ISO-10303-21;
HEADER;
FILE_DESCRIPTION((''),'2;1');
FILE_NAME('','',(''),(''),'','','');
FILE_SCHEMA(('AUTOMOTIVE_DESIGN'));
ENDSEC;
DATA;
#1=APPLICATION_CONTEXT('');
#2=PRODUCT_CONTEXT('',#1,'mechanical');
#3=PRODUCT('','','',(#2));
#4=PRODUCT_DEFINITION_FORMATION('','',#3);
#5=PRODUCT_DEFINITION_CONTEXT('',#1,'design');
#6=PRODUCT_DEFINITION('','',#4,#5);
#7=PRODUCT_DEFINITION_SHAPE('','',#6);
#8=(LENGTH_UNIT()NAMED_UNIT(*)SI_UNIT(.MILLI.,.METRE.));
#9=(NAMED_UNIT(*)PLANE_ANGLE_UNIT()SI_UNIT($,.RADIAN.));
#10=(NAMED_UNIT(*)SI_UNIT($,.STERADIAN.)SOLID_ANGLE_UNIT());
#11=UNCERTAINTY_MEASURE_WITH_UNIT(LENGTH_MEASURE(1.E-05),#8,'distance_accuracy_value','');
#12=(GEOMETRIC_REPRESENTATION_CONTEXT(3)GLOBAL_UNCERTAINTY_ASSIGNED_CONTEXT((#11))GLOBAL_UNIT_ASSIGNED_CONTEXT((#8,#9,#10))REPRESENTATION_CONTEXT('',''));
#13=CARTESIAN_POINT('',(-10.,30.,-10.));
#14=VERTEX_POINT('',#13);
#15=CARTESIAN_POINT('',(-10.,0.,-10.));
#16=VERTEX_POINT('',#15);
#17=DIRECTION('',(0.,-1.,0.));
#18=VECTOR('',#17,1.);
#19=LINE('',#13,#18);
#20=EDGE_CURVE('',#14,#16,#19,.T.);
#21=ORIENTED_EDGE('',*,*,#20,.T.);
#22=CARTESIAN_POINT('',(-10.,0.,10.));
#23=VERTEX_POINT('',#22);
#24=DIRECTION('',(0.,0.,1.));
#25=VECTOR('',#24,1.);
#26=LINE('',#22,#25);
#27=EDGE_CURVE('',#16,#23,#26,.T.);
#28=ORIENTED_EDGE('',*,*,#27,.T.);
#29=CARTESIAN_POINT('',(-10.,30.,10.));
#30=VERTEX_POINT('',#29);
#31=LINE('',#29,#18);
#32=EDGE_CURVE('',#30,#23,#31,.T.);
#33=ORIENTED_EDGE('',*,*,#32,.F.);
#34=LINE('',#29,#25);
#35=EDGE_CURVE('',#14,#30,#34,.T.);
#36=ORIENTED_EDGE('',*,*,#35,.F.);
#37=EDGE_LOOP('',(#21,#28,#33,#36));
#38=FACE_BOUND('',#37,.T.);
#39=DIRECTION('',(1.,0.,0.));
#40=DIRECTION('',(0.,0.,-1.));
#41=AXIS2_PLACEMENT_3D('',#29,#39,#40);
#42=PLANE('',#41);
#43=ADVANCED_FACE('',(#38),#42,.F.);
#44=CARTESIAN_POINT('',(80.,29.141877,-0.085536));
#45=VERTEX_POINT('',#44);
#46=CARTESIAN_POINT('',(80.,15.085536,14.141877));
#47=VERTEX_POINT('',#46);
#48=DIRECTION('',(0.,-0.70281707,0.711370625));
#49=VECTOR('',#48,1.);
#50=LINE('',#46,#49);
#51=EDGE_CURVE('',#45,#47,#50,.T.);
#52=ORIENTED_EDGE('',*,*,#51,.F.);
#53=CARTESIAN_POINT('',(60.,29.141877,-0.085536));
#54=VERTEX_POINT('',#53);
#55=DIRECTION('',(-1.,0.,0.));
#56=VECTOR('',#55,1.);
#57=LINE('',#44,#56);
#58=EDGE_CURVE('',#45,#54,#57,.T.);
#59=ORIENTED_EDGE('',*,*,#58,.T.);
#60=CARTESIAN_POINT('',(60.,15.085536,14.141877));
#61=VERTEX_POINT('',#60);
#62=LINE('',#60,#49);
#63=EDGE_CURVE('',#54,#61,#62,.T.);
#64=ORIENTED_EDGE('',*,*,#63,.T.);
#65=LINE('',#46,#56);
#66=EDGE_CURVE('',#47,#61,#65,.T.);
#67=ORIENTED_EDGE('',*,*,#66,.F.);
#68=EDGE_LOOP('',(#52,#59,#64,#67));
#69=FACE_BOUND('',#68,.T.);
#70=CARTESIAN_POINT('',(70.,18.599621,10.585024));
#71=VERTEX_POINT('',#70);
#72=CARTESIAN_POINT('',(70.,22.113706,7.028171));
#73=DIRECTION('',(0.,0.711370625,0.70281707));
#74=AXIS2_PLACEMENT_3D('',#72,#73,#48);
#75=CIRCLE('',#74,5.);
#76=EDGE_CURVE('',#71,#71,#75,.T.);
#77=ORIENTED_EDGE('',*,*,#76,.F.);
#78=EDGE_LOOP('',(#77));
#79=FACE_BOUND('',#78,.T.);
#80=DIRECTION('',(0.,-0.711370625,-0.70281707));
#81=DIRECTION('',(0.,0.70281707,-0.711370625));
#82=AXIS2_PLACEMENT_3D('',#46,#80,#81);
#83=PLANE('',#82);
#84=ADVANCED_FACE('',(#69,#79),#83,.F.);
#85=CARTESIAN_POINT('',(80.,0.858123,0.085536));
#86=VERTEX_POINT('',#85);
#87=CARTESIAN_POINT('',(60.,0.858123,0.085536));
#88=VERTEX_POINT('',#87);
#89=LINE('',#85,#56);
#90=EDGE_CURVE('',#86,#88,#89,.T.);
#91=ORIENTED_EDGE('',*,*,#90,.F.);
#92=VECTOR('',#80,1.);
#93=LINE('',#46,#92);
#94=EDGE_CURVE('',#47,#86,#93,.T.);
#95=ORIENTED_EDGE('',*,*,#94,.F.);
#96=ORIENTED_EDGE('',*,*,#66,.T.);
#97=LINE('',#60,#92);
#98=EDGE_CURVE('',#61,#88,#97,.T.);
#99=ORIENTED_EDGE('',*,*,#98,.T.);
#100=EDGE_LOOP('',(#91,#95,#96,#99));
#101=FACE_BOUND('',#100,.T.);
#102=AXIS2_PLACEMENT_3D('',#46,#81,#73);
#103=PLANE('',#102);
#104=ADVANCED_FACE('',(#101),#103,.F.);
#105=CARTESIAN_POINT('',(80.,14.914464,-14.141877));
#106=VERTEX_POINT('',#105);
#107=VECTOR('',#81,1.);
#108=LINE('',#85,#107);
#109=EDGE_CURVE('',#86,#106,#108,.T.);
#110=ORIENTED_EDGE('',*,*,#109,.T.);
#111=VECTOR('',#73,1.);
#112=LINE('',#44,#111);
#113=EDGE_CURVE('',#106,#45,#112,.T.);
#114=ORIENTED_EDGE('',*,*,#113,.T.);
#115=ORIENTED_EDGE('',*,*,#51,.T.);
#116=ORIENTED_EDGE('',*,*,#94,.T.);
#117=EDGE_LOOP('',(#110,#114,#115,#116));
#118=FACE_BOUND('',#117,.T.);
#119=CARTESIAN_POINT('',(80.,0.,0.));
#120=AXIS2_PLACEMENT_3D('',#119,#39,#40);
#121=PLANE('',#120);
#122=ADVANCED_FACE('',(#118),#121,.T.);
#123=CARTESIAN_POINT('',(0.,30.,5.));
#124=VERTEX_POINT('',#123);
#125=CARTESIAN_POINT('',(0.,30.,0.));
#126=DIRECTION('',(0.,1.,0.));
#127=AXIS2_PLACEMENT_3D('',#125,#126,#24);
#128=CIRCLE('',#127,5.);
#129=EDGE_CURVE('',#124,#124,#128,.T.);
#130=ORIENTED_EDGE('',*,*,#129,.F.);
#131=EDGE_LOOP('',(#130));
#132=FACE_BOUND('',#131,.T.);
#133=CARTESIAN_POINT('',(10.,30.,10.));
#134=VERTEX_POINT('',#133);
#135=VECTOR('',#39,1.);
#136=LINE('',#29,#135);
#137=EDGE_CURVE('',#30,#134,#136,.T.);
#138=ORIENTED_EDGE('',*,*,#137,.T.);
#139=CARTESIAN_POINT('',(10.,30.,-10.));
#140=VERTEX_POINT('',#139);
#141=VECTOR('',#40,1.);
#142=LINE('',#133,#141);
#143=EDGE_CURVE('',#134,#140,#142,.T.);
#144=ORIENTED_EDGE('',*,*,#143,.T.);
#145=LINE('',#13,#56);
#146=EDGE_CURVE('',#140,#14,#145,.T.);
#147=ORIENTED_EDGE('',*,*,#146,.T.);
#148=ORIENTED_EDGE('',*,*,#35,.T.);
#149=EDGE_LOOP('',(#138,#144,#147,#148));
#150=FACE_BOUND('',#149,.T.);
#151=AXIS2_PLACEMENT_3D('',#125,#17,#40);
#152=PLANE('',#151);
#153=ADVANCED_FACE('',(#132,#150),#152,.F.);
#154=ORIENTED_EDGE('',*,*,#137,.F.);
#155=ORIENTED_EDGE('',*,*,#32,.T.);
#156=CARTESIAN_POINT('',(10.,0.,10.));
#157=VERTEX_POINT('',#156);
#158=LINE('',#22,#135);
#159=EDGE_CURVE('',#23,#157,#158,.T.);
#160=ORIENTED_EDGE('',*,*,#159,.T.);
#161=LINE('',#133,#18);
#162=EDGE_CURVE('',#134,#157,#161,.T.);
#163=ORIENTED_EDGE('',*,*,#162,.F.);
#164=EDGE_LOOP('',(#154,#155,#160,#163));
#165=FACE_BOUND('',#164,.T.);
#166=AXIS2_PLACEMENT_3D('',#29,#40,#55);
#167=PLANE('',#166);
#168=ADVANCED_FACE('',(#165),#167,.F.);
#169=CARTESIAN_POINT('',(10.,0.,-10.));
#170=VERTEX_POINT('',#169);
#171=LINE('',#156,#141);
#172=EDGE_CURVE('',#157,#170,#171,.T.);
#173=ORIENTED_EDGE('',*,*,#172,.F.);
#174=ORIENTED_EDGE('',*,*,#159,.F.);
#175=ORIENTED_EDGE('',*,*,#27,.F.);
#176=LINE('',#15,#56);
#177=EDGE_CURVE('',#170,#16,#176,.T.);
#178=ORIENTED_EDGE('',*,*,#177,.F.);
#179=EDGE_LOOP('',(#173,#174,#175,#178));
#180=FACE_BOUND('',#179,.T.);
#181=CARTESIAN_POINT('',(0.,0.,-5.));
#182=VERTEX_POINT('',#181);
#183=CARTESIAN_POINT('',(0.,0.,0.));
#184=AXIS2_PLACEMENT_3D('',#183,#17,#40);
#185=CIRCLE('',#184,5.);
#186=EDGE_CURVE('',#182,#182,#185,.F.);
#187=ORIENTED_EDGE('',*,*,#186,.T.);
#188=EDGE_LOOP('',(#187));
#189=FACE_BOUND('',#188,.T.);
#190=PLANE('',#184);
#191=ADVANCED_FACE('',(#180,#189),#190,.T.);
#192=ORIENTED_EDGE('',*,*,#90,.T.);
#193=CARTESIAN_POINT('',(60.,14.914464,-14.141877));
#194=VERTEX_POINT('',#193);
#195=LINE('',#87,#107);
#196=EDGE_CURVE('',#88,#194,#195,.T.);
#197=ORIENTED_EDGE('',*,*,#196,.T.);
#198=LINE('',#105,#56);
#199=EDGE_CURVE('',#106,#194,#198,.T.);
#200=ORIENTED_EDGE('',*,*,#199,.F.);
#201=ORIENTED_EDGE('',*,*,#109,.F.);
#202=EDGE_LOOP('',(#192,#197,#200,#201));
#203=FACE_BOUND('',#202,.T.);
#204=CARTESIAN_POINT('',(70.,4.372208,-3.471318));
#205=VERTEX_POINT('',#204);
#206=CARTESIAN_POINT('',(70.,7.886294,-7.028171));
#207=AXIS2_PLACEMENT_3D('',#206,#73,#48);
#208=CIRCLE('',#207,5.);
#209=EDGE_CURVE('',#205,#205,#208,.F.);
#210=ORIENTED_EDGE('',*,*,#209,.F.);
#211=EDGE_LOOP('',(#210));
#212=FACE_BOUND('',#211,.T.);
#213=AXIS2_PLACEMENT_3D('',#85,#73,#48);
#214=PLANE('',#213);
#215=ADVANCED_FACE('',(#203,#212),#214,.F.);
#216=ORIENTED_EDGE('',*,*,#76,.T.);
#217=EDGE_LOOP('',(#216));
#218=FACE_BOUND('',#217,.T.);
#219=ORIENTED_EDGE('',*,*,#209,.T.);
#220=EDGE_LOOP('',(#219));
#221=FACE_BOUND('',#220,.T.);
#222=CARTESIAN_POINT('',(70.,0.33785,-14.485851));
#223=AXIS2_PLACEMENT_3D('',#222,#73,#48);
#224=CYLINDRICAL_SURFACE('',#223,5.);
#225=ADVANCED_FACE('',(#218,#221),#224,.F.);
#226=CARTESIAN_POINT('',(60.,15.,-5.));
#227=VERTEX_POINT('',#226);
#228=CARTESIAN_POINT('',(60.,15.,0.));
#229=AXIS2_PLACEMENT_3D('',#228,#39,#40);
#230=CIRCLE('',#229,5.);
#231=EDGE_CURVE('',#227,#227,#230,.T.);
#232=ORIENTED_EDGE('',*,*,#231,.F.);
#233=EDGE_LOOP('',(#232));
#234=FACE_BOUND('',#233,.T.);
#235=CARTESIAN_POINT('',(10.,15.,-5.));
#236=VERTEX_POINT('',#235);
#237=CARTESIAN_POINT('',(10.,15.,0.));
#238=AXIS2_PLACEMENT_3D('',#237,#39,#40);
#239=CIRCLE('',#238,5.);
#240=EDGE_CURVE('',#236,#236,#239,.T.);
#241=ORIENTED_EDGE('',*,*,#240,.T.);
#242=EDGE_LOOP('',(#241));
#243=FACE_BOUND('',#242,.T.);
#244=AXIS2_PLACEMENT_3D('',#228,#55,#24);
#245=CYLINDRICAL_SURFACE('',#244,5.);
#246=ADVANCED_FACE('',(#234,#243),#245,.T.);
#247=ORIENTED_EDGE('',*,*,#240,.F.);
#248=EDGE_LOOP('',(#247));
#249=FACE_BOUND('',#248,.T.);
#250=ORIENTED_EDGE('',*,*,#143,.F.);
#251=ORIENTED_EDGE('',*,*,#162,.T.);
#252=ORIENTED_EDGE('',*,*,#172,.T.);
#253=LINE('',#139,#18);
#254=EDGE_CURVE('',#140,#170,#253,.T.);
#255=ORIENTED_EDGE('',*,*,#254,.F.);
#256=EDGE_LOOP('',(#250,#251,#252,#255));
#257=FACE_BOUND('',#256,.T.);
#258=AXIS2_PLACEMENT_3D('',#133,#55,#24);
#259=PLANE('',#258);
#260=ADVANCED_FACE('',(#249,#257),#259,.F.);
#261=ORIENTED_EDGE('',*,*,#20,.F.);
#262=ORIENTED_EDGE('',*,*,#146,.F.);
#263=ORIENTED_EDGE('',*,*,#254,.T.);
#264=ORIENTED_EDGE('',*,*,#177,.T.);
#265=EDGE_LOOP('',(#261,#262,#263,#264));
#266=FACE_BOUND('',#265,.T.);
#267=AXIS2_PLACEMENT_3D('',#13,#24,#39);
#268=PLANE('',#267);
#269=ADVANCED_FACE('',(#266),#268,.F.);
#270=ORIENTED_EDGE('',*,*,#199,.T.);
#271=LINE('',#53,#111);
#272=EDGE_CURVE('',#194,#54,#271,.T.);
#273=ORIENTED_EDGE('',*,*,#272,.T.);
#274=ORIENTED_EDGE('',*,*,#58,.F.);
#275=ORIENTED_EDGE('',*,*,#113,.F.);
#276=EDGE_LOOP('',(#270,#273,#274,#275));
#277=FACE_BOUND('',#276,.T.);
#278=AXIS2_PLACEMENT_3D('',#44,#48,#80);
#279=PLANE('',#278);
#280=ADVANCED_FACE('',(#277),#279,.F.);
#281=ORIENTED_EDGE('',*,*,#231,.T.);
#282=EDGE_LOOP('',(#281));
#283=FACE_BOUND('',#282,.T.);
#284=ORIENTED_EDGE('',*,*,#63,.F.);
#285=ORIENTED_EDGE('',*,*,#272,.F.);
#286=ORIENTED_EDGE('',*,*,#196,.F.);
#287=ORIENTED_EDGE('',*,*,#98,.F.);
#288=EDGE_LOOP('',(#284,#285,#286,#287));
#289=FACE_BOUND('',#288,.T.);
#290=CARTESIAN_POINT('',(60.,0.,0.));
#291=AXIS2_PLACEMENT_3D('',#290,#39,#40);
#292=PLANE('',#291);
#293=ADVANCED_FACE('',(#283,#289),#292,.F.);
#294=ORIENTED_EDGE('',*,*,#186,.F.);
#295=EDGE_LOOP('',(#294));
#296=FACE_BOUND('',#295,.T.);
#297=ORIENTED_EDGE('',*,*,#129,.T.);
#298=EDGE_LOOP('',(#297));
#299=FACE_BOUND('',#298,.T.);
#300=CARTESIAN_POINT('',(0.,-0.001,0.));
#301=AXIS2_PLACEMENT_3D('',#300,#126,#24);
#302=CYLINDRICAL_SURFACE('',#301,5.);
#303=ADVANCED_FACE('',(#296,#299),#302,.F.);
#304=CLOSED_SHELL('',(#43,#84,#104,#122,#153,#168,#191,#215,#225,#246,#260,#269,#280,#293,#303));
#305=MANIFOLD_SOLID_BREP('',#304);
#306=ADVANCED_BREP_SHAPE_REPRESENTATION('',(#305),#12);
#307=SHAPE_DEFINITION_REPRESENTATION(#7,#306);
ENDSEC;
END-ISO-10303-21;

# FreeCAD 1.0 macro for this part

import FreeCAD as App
import Part
import Sketcher


def add_polygon(sketch, points):
    """Adds a closed chain of lines whose ends are joined by coincident constraints."""
    first, n = sketch.GeometryCount, len(points)
    for a, b in zip(points, points[1:] + points[:1]):
        sketch.addGeometry(Part.LineSegment(App.Vector(*a, 0), App.Vector(*b, 0)), False)
    for i in range(n):
        sketch.addConstraint(Sketcher.Constraint("Coincident", first + i, 2, first + (i + 1) % n, 1))

doc = App.newDocument("Part")
body = doc.addObject("PartDesign::Body", "Body")

sketch1 = doc.addObject("Sketcher::SketchObject", "Sketch")
body.addObject(sketch1)
sketch1.AttachmentSupport = (doc.XZ_Plane, [""])
sketch1.MapMode = "FlatFace"
add_polygon(sketch1, [(-10, -10), (-10, 10), (10, 10), (10, -10)])
sketch1.addConstraint([
    Sketcher.Constraint("Vertical", 0),
    Sketcher.Constraint("Horizontal", 1),
    Sketcher.Constraint("Vertical", 2),
    Sketcher.Constraint("Horizontal", 3),
    Sketcher.Constraint("Symmetric", 0, 2, 2, 2, -1, 1),
    Sketcher.Constraint("Equal", 3, 0),
    Sketcher.Constraint("DistanceX", 1, 1, 1, 2, 20.0),
])
pad1 = doc.addObject("PartDesign::Pad", "Pad")
body.addObject(pad1)
pad1.Profile = sketch1
pad1.Length = 30
pad1.Reversed = True

sketch2 = doc.addObject("Sketcher::SketchObject", "Sketch001")
body.addObject(sketch2)
sketch2.AttachmentSupport = (doc.YZ_Plane, [""])
sketch2.MapMode = "FlatFace"
sketch2.AttachmentOffset = App.Placement(App.Vector(0, 0, 10), App.Rotation())
sketch2.addGeometry(Part.Circle(App.Vector(15, 0, 0), App.Vector(0, 0, 1), 5), False)
sketch2.addConstraint([
    Sketcher.Constraint("PointOnObject", 0, 3, -1),
    Sketcher.Constraint("Diameter", 0, 10.0),
    Sketcher.Constraint("DistanceX", -1, 1, 0, 3, 15.0),
])
pad2 = doc.addObject("PartDesign::Pad", "Pad001")
body.addObject(pad2)
pad2.Profile = sketch2
pad2.Length = 50

sketch3 = doc.addObject("Sketcher::SketchObject", "Sketch002")
body.addObject(sketch3)
sketch3.AttachmentSupport = (doc.YZ_Plane, [""])
sketch3.MapMode = "FlatFace"
sketch3.AttachmentOffset = App.Placement(App.Vector(0, 0, 60), App.Rotation())
add_polygon(sketch3, [(29, 0), (15, 14), (1, 0), (15, -14)])
sketch3.addConstraint([
    Sketcher.Constraint("Perpendicular", 0, 1),
    Sketcher.Constraint("Perpendicular", 1, 2),
    Sketcher.Constraint("Perpendicular", 2, 3),
    Sketcher.Constraint("Equal", 0, 1),
    Sketcher.Constraint("Distance", 0, 20.0),
    Sketcher.Constraint("DistanceY", 1, 2, 0, 2, 14.056341),
    Sketcher.Constraint("DistanceX", -1, 1, 0, 2, 15.085536),
    Sketcher.Constraint("DistanceY", -1, 1, 0, 2, 14.141877),
])
pad3 = doc.addObject("PartDesign::Pad", "Pad002")
body.addObject(pad3)
pad3.Profile = sketch3
pad3.Length = 20

sketch4 = doc.addObject("Sketcher::SketchObject", "Sketch003")
body.addObject(sketch4)
sketch4.AttachmentSupport = (doc.XZ_Plane, [""])
sketch4.MapMode = "FlatFace"
sketch4.AttachmentOffset = App.Placement(App.Vector(0, 0, -30), App.Rotation())
sketch4.addGeometry(Part.Circle(App.Vector(0, 0, 0), App.Vector(0, 0, 1), 5), False)
sketch4.addConstraint([
    Sketcher.Constraint("Coincident", 0, 3, -1, 1),
    Sketcher.Constraint("Diameter", 0, 10.0),
])
pocket1 = doc.addObject("PartDesign::Pocket", "Pocket")
body.addObject(pocket1)
pocket1.Profile = sketch4
pocket1.Type = "UpToFirst"
pocket1.Reversed = True

sketch5 = doc.addObject("Sketcher::SketchObject", "Sketch004")
body.addObject(sketch5)
sketch5.Placement = App.Placement(App.Vector(0, 14.704429, 14.527622), App.Rotation(App.Vector(1, 0, 0), App.Vector(0, 0.70281707, -0.711370625), App.Vector(0, 0.711370625, 0.70281707), "ZXY"))
sketch5.addGeometry(Part.Circle(App.Vector(70, 11, 0), App.Vector(0, 0, 1), 5), False)
sketch5.addConstraint([
    Sketcher.Constraint("Diameter", 0, 10.0),
    Sketcher.Constraint("DistanceX", -1, 1, 0, 3, 70.0),
    Sketcher.Constraint("DistanceY", -1, 1, 0, 3, 10.542256),
])
pocket2 = doc.addObject("PartDesign::Pocket", "Pocket001")
body.addObject(pocket2)
pocket2.Profile = sketch5
pocket2.Type = "UpToFirst"

doc.recompute()
